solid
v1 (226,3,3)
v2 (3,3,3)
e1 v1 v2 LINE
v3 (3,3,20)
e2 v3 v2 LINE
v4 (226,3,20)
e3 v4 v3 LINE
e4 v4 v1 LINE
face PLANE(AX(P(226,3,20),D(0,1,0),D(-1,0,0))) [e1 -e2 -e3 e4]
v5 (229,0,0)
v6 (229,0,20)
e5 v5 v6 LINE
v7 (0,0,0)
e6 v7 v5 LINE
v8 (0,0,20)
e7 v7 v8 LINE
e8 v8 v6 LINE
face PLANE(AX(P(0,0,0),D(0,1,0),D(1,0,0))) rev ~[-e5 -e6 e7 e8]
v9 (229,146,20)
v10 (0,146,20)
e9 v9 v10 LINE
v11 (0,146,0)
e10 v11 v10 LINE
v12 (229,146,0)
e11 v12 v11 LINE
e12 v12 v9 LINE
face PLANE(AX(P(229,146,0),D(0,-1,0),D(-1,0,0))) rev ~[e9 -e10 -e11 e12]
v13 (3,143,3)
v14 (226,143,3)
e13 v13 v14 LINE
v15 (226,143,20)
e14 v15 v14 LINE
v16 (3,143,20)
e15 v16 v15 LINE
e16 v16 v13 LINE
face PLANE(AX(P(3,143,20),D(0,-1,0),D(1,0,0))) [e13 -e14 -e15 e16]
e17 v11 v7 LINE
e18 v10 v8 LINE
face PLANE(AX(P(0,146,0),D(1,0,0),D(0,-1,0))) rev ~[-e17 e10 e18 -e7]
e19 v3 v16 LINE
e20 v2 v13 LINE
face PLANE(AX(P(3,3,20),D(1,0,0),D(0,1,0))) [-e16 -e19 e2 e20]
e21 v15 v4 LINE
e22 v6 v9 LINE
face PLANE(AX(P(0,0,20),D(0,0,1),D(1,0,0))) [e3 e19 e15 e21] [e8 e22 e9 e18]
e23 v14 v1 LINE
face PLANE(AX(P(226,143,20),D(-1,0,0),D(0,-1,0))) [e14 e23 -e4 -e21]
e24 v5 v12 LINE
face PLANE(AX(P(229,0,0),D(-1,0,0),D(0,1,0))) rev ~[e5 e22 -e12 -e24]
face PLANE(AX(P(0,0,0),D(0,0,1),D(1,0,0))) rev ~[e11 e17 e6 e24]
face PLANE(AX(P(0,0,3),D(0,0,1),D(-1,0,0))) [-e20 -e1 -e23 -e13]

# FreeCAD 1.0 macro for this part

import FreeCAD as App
import Part
import Sketcher


def add_polygon(sketch, points):
    """Adds a closed chain of lines whose ends are joined by coincident constraints."""
    first, n = sketch.GeometryCount, len(points)
    for a, b in zip(points, points[1:] + points[:1]):
        sketch.addGeometry(Part.LineSegment(App.Vector(*a, 0), App.Vector(*b, 0)), False)
    for i in range(n):
        sketch.addConstraint(Sketcher.Constraint("Coincident", first + i, 2, first + (i + 1) % n, 1))

doc = App.newDocument("Part")
body = doc.addObject("PartDesign::Body", "Body")

# Sketch on XY plane
sketch1 = body.newObject("Sketcher::SketchObject", "Sketch")
sketch1.AttachmentSupport = (doc.getObject("XY_Plane"), [""])
sketch1.MapMode = "FlatFace"
add_polygon(sketch1, [(0, 146), (0, 0), (229, 0), (229, 146)])  # lines 0-3
sketch1.addConstraint(Sketcher.Constraint("Vertical", 0))
sketch1.addConstraint(Sketcher.Constraint("Horizontal", 1))
sketch1.addConstraint(Sketcher.Constraint("Vertical", 2))
sketch1.addConstraint(Sketcher.Constraint("Horizontal", 3))
sketch1.addConstraint(Sketcher.Constraint("Coincident", 0, 2, -1, 1))
sketch1.addConstraint(Sketcher.Constraint("DistanceX", 1, 1, 1, 2, 229.0))
sketch1.addConstraint(Sketcher.Constraint("DistanceY", 0, 2, 0, 1, 146.0))
pad1 = body.newObject("PartDesign::Pad", "Pad")
pad1.Profile = sketch1
pad1.Length = 20

# Sketch on XY plane
sketch2 = body.newObject("Sketcher::SketchObject", "Sketch001")
sketch2.AttachmentSupport = (doc.getObject("XY_Plane"), [""])
sketch2.MapMode = "FlatFace"
sketch2.AttachmentOffset = App.Placement(App.Vector(0, 0, 20), App.Rotation())
add_polygon(sketch2, [(226, 143), (3, 143), (3, 3), (226, 3)])  # lines 0-3
sketch2.addConstraint(Sketcher.Constraint("Horizontal", 0))
sketch2.addConstraint(Sketcher.Constraint("Vertical", 1))
sketch2.addConstraint(Sketcher.Constraint("Horizontal", 2))
sketch2.addConstraint(Sketcher.Constraint("Vertical", 3))
sketch2.addConstraint(Sketcher.Constraint("DistanceX", -1, 1, 0, 2, 3.0))
sketch2.addConstraint(Sketcher.Constraint("DistanceY", -1, 1, 1, 2, 3.0))
sketch2.addConstraint(Sketcher.Constraint("DistanceX", 0, 2, 0, 1, 223.0))
sketch2.addConstraint(Sketcher.Constraint("DistanceY", 1, 2, 1, 1, 140.0))
pocket1 = body.newObject("PartDesign::Pocket", "Pocket")
pocket1.Profile = sketch2
pocket1.Length = 17

doc.recompute()
